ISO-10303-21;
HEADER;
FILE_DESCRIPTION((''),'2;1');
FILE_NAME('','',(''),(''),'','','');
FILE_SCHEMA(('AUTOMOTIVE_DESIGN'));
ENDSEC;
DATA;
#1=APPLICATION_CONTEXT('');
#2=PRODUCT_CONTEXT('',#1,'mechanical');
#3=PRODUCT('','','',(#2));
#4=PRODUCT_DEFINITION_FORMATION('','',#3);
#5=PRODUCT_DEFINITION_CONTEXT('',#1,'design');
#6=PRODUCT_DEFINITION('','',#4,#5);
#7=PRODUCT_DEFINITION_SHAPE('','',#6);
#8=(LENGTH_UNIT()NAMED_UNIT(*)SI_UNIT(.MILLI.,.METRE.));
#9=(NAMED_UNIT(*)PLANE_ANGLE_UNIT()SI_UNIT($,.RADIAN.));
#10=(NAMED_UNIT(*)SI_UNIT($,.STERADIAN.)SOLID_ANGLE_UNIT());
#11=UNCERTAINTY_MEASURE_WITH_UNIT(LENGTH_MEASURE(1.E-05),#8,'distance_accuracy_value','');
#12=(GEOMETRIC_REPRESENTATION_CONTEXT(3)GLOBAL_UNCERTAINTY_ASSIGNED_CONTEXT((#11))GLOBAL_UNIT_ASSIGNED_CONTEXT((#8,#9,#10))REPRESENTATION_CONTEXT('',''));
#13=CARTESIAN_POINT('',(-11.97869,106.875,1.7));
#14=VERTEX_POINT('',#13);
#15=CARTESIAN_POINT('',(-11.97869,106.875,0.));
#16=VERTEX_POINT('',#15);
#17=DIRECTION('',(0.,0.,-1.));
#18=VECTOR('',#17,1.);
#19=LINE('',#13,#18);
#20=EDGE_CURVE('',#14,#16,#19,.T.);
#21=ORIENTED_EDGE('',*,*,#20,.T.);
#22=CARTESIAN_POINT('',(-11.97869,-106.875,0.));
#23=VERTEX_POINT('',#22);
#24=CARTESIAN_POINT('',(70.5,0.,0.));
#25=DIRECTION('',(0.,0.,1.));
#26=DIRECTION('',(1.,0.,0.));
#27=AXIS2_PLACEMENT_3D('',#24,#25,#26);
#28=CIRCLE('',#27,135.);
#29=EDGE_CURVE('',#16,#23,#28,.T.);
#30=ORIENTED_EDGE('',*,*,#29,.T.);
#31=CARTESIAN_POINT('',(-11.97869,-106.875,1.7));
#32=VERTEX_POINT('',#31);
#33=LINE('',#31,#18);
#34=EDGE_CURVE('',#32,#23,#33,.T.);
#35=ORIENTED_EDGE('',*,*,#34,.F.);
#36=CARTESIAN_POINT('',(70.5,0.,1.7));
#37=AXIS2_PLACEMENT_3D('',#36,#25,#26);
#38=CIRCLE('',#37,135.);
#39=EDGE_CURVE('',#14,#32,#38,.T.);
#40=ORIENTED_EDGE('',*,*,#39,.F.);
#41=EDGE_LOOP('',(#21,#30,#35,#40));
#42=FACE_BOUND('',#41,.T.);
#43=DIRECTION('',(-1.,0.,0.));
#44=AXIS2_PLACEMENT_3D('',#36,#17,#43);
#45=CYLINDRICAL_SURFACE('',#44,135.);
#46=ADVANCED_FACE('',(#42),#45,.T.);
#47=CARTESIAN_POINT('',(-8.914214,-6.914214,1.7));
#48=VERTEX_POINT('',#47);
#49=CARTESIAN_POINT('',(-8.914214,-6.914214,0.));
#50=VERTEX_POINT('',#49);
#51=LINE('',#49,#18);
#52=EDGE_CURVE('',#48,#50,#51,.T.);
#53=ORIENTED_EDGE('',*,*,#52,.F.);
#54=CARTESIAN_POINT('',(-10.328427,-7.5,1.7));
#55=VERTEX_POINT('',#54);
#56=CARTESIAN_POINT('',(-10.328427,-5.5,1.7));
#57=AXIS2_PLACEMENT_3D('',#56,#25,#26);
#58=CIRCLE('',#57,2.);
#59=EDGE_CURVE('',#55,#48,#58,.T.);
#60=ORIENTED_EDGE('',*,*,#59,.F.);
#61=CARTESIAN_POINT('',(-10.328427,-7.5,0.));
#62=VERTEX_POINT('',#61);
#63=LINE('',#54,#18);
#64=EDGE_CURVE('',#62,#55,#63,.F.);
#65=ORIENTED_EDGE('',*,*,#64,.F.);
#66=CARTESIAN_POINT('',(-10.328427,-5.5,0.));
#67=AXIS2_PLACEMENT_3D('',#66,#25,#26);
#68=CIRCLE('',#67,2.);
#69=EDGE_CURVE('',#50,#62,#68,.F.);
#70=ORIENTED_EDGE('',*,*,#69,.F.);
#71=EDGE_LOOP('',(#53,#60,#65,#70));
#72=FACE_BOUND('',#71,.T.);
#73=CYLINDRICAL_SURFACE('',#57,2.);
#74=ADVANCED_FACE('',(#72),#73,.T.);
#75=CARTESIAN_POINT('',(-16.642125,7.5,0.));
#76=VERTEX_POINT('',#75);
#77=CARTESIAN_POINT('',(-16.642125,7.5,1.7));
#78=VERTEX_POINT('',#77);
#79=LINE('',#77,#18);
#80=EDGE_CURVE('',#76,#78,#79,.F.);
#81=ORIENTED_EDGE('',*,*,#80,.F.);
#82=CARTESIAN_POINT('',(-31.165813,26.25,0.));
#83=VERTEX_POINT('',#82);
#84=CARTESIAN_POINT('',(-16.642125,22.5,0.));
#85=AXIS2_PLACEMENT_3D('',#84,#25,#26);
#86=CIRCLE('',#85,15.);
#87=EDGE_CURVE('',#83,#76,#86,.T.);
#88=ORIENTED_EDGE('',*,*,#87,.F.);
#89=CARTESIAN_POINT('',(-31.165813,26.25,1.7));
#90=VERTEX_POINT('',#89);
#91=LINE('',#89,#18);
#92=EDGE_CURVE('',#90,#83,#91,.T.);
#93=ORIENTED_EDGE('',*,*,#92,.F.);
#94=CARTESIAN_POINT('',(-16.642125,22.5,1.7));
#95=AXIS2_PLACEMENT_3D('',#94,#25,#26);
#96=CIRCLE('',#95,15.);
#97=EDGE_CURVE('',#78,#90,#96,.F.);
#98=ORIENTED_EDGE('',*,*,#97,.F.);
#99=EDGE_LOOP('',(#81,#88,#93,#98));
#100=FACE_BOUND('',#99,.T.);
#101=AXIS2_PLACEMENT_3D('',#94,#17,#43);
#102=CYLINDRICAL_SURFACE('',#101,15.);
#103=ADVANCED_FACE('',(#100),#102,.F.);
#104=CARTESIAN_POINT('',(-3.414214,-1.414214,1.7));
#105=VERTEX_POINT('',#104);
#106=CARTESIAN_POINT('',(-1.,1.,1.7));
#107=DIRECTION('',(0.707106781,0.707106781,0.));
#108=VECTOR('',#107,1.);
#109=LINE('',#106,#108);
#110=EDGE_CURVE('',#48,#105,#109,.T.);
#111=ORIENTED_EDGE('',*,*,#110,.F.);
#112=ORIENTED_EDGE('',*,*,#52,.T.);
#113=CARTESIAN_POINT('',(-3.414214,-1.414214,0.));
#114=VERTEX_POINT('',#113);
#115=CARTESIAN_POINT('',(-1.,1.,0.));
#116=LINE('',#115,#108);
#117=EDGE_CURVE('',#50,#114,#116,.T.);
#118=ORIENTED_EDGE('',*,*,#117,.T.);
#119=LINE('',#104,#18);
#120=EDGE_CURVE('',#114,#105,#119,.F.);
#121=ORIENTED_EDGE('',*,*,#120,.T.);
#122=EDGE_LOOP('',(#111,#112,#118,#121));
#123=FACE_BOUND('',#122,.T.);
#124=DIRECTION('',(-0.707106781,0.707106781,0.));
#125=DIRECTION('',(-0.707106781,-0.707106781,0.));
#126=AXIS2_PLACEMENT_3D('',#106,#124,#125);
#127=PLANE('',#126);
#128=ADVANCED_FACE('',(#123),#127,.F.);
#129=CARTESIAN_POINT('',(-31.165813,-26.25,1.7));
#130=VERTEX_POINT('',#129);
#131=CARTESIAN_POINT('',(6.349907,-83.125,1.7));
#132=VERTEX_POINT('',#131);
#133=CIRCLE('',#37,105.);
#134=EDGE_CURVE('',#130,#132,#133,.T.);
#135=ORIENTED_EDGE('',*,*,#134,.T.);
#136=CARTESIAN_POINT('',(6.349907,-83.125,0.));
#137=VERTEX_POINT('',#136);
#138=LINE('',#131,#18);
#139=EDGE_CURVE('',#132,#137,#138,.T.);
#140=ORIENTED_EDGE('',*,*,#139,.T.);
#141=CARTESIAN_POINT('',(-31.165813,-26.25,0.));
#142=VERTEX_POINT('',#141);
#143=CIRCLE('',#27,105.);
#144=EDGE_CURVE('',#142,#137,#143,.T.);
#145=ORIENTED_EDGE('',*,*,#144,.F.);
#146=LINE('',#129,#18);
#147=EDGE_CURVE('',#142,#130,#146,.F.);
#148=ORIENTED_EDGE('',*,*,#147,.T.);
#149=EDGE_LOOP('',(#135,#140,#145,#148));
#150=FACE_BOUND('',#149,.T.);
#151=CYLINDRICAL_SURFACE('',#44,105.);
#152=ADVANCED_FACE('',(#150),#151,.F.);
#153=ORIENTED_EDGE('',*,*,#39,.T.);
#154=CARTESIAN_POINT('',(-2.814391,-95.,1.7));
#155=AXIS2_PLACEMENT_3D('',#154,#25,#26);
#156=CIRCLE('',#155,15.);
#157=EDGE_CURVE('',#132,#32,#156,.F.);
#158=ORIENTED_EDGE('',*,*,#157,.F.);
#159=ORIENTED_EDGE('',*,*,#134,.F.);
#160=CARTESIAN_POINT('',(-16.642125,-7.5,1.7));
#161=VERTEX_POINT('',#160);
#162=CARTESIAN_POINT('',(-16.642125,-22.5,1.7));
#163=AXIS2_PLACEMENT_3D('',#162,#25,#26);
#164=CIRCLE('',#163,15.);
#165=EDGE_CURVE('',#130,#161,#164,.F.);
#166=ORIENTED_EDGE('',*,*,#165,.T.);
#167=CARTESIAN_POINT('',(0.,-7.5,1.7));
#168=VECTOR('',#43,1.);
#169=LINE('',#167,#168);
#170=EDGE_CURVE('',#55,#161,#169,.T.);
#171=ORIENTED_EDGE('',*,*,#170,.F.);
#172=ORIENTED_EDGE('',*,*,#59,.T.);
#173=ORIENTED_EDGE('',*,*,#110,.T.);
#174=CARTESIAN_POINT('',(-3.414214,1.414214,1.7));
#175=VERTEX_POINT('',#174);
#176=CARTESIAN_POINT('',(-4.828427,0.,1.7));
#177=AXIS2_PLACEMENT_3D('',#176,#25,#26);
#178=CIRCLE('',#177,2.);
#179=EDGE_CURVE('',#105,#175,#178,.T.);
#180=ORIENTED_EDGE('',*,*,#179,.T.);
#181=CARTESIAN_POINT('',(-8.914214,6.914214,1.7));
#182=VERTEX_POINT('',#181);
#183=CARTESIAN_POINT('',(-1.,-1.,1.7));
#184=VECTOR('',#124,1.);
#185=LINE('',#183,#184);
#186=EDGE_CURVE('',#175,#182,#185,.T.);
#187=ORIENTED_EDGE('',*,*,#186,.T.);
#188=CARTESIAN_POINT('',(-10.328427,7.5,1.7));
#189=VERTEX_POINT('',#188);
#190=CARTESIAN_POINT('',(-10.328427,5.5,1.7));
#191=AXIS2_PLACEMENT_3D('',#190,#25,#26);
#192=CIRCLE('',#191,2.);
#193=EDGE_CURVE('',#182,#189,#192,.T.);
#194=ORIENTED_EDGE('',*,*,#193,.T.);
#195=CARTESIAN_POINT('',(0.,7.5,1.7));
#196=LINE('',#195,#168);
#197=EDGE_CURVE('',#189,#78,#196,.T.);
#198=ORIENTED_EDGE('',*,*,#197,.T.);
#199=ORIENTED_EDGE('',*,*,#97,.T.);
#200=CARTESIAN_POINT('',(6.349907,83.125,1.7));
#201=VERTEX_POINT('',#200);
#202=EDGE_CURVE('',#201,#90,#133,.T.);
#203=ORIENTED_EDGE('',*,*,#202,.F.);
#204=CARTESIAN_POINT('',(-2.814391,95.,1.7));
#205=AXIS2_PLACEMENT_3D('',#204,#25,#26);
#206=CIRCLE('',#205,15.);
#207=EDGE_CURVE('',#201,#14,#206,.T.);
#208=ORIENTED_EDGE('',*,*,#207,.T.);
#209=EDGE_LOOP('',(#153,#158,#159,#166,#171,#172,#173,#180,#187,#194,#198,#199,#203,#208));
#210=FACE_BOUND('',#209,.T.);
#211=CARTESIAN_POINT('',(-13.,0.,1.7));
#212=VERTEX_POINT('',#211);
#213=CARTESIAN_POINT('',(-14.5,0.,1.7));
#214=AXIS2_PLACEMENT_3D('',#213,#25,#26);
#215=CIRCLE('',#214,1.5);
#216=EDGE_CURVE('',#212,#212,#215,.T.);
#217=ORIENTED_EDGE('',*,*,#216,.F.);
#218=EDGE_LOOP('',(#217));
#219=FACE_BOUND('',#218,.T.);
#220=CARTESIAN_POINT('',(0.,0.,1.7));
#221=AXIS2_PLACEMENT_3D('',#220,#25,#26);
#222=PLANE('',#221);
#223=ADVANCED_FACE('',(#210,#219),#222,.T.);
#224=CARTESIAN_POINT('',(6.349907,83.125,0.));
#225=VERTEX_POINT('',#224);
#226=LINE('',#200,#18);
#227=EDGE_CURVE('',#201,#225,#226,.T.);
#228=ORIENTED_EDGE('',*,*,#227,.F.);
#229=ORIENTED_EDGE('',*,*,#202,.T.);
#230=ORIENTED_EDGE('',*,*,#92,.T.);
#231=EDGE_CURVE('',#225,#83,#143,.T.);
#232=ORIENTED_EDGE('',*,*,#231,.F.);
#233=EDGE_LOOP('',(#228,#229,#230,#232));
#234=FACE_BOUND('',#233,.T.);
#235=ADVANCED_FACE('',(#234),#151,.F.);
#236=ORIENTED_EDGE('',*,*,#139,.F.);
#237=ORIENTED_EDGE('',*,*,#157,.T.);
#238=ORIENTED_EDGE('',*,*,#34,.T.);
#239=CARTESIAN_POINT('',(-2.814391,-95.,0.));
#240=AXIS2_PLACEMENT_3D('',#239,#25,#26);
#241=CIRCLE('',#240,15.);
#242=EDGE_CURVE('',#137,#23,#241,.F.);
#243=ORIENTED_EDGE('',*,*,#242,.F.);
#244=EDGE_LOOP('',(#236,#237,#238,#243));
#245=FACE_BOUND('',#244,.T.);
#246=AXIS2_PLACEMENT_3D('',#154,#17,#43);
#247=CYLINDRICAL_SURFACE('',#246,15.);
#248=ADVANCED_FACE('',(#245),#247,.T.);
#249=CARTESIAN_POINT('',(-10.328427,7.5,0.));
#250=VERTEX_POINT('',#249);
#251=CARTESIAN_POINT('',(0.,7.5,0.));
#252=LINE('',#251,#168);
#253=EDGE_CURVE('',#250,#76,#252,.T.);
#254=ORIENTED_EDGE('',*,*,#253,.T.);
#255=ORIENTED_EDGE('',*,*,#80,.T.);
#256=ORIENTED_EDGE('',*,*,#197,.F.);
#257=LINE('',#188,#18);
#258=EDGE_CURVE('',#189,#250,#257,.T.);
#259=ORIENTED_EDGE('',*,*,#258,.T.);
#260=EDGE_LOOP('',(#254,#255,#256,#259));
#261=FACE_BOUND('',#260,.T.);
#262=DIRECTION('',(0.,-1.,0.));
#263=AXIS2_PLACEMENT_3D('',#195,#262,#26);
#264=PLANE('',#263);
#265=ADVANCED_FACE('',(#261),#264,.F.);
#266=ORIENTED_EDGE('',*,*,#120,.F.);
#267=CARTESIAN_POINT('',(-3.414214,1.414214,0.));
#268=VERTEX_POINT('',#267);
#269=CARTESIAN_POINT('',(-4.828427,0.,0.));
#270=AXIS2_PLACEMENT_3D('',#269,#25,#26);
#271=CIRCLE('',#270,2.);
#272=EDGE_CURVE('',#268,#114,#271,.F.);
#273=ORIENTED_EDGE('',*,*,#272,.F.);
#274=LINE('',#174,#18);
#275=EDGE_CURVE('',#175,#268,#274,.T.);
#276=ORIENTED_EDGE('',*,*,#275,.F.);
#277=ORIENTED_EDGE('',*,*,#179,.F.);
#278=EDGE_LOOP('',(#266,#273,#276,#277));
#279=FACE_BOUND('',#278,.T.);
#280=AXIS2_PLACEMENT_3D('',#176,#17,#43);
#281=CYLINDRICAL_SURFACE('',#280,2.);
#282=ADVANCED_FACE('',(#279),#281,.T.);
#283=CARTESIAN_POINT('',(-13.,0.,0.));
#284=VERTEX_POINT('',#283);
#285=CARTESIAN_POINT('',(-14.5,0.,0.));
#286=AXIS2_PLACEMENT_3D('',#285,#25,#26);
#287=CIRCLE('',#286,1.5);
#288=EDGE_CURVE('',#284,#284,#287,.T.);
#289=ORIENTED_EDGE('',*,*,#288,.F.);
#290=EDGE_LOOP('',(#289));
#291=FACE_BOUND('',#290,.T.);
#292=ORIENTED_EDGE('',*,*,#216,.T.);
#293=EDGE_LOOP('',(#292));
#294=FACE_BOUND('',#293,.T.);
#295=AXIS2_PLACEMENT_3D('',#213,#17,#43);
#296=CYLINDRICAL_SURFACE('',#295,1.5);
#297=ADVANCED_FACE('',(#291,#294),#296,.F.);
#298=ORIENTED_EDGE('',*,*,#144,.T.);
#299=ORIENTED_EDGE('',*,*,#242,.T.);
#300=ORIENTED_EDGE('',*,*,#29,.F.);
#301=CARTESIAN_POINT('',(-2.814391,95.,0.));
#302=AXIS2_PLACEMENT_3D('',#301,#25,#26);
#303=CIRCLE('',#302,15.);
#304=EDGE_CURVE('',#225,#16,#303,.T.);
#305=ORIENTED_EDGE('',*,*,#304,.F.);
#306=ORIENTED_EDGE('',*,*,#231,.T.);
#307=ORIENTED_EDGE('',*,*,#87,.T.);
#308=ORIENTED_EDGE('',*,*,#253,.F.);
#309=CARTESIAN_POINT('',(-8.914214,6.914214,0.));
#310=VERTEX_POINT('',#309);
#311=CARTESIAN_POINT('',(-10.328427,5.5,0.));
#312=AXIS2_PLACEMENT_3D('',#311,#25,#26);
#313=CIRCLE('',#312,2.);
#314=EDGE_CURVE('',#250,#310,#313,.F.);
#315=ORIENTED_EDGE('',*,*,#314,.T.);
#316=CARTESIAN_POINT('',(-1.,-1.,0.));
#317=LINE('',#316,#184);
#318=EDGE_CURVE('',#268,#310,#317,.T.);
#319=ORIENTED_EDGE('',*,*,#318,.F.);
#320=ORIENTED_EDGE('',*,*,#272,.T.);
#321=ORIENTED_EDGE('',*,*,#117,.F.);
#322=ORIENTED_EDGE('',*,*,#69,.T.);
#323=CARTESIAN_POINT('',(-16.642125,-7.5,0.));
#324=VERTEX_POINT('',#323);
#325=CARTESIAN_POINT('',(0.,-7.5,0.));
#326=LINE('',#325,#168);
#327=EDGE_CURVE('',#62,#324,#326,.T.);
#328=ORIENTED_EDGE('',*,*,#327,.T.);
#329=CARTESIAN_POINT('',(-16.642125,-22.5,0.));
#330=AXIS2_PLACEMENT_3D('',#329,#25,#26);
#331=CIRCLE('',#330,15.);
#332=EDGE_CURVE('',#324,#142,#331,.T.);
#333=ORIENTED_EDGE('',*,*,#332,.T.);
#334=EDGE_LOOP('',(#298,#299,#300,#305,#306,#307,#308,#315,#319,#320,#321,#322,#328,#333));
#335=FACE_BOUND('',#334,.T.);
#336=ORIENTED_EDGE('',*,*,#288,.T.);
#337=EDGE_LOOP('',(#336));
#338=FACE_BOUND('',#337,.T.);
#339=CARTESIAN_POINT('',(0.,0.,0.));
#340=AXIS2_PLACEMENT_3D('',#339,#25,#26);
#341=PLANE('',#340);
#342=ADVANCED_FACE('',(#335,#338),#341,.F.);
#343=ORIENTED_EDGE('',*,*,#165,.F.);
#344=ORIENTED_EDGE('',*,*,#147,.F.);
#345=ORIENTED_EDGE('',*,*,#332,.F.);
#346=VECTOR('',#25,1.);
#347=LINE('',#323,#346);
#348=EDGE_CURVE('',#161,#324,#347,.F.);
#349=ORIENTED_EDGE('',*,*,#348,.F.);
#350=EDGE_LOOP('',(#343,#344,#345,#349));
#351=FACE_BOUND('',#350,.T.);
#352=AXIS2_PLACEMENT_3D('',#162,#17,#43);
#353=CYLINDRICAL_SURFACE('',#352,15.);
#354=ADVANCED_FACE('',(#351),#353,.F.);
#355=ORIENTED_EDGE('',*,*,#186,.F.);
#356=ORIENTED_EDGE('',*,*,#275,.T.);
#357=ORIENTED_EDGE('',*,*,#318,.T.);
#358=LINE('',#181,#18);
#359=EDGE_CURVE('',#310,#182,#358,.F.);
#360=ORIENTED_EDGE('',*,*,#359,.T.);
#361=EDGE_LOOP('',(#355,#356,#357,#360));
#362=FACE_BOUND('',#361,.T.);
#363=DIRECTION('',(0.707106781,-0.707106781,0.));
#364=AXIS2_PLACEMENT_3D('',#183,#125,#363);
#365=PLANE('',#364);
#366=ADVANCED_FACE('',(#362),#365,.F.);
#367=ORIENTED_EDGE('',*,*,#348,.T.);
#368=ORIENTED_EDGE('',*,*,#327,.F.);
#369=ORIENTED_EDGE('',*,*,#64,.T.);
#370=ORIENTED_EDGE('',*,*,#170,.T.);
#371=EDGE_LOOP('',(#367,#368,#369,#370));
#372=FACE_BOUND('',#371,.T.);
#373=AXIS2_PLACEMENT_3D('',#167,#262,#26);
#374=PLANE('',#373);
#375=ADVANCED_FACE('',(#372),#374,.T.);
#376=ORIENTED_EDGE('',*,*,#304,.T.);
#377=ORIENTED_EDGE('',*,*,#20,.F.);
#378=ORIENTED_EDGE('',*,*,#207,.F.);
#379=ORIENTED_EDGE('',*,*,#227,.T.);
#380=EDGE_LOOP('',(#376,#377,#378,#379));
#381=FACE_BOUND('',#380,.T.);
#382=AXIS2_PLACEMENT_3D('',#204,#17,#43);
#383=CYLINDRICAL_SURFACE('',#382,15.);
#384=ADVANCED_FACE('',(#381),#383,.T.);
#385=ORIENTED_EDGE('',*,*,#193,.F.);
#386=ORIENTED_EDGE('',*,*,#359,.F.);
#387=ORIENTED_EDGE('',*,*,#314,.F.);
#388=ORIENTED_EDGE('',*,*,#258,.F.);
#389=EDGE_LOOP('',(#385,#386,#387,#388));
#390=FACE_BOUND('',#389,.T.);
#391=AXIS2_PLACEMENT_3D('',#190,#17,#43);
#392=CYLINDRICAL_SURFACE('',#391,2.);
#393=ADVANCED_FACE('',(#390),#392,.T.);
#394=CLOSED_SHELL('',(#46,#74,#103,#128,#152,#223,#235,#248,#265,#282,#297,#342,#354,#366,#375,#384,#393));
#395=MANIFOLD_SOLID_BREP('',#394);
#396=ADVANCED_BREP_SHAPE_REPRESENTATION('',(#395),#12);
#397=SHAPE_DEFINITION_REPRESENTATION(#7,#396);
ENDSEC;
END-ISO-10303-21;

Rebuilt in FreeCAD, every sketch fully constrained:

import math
import FreeCAD as App
import Part
import Sketcher
from FreeCAD import Vector
Q = App.Units.Quantity


def edges_at(feature, points):
    """Names of the edges that pass closest to the given points."""
    edges = feature.Shape.Edges
    near = lambda p: min(range(len(edges)), key=lambda i: edges[i].distToShape(Part.Vertex(*p))[0])
    return sorted({f"Edge{near(p) + 1}" for p in points})

doc = App.newDocument("Part")
body = doc.addObject("PartDesign::Body", "Body")

sketch1 = body.newObject("Sketcher::SketchObject", "Sketch")
sketch1.AttachmentSupport = (doc.getObject("XY_Plane"), [""])
sketch1.MapMode = "FlatFace"
sketch1.addGeometry(Part.ArcOfCircle(Part.Circle(Vector(-2.8, -95, 0), Vector(0, 0, 1), 15), math.radians(-128), math.radians(52)), False)
sketch1.addGeometry(Part.ArcOfCircle(Part.Circle(Vector(70.5, 0, 0), Vector(0, 0, 1), 105), math.radians(-176), math.radians(-128)), False)
sketch1.addGeometry(Part.LineSegment(Vector(-34.2, -7.5, 0), Vector(-9.5, -7.5, 0)), False)
sketch1.addGeometry(Part.LineSegment(Vector(-9.5, -7.5, 0), Vector(-2, 0, 0)), False)
sketch1.addGeometry(Part.LineSegment(Vector(-2, 0, 0), Vector(-9.5, 7.5, 0)), False)
sketch1.addGeometry(Part.LineSegment(Vector(-9.5, 7.5, 0), Vector(-34.2, 7.5, 0)), False)
sketch1.addGeometry(Part.ArcOfCircle(Part.Circle(Vector(70.5, 0, 0), Vector(0, 0, 1), 105), math.radians(128), math.radians(176)), False)
sketch1.addGeometry(Part.ArcOfCircle(Part.Circle(Vector(-2.8, 95, 0), Vector(0, 0, 1), 15), math.radians(-52), math.radians(128)), False)
sketch1.addGeometry(Part.ArcOfCircle(Part.Circle(Vector(70.5, 0, 0), Vector(0, 0, 1), 135), math.radians(128), math.radians(232)), False)
sketch1.addGeometry(Part.Circle(Vector(-14.5, 0, 0), Vector(0, 0, 1), 1.5), False)
sketch1.addConstraint(Sketcher.Constraint("Tangent", 0, 2, 1, 2))
sketch1.addConstraint(Sketcher.Constraint("Coincident", 1, 1, 2, 1))
sketch1.addConstraint(Sketcher.Constraint("Coincident", 2, 2, 3, 1))
sketch1.addConstraint(Sketcher.Constraint("Coincident", 3, 2, 4, 1))
sketch1.addConstraint(Sketcher.Constraint("Coincident", 4, 2, 5, 1))
sketch1.addConstraint(Sketcher.Constraint("Coincident", 5, 2, 6, 2))
sketch1.addConstraint(Sketcher.Constraint("Tangent", 6, 1, 7, 1))
sketch1.addConstraint(Sketcher.Constraint("Tangent", 7, 2, 8, 1))
sketch1.addConstraint(Sketcher.Constraint("Tangent", 8, 2, 0, 1))
sketch1.addConstraint(Sketcher.Constraint("Horizontal", 2))
sketch1.addConstraint(Sketcher.Constraint("Horizontal", 5))
sketch1.addConstraint(Sketcher.Constraint("Coincident", 6, 3, 1, 3))
sketch1.addConstraint(Sketcher.Constraint("Coincident", 8, 3, 1, 3))
sketch1.addConstraint(Sketcher.Constraint("Equal", 1, 6))
sketch1.addConstraint(Sketcher.Constraint("Symmetric", 0, 3, 7, 3, -1))
sketch1.addConstraint(Sketcher.Constraint("Symmetric", 2, 2, 4, 2, -1))
sketch1.addConstraint(Sketcher.Constraint("PointOnObject", 9, 3, -1))
sketch1.addConstraint(Sketcher.Constraint("PointOnObject", 3, 2, -1))
sketch1.addConstraint(Sketcher.Constraint("Perpendicular", 3, 4))
sketch1.addConstraint(Sketcher.Constraint("Diameter", 9, Q("3 mm")))
sketch1.addConstraint(Sketcher.Constraint("Radius", 0, Q("15 mm")))
sketch1.addConstraint(Sketcher.Constraint("Radius", 1, Q("105 mm")))
sketch1.addConstraint(Sketcher.Constraint("DistanceY", 0, 3, -1, 1, Q("95 mm")))
sketch1.addConstraint(Sketcher.Constraint("DistanceX", 3, 2, -1, 1, Q("2 mm")))
sketch1.addConstraint(Sketcher.Constraint("DistanceX", 9, 3, 1, 3, Q("85 mm")))
sketch1.addConstraint(Sketcher.Constraint("DistanceX", 9, 3, 2, 2, Q("5 mm")))
sketch1.addConstraint(Sketcher.Constraint("DistanceY", 2, 2, 4, 2, Q("15 mm")))
pad1 = body.newObject("PartDesign::Pad", "Pad")
pad1.Profile = sketch1
pad1.Length = 1.7
doc.recompute()

fillet = body.newObject("PartDesign::Fillet", "Fillet")
fillet.Base = (pad1, edges_at(pad1, [(-34.232, -7.5, 0.85), (-34.232, 7.5, 0.85)]))
fillet.Radius = 15
doc.recompute()

fillet2 = body.newObject("PartDesign::Fillet", "Fillet001")
fillet2.Base = (fillet, edges_at(fillet, [(-9.5, 7.5, 0.85), (-2, 0, 0.85), (-9.5, -7.5, 0.85)]))
fillet2.Radius = 2

doc.recompute()
